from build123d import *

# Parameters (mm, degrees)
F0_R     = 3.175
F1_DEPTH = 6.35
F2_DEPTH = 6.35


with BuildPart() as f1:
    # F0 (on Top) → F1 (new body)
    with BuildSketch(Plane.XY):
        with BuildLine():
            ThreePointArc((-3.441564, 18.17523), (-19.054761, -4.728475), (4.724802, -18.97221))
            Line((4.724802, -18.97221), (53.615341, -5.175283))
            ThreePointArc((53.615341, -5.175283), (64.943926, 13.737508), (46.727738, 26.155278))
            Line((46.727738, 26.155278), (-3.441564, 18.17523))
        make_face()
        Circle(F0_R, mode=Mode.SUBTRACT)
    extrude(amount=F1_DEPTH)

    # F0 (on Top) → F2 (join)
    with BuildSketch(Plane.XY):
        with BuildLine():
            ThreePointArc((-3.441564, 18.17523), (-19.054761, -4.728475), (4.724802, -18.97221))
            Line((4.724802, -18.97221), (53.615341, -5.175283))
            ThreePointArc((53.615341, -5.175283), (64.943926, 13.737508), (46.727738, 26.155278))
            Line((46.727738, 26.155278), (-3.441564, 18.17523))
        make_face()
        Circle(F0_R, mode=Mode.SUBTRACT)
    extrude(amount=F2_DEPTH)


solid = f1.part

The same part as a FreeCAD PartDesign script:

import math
import FreeCAD as App
import Part
import Sketcher
from FreeCAD import Vector
Q = App.Units.Quantity

doc = App.newDocument("Part")
params = doc.addObject("Spreadsheet::Sheet", "Params")
for row, (alias, value) in enumerate([
    ("sketch1_diameter", "0.25 in"),
    ("sketch1_radius", "0.75 in"),
    ("sketch1_length", "2 in"),
    ("pad1_length", "0.25 in"),
    ("sketch2_diameter", "0.25 in"),
    ("sketch2_radius", "0.75 in"),
    ("sketch2_length", "2 in"),
    ("pad2_length", "0.25 in"),
], start=1):
    params.set(f"A{row}", alias)
    params.set(f"B{row}", "=" + value)
    params.setAlias(f"B{row}", alias)

body = doc.addObject("PartDesign::Body", "Body")

sketch1 = doc.addObject("Sketcher::SketchObject", "Sketch")
body.addObject(sketch1)
sketch1.AttachmentSupport = (doc.XY_Plane, [""])
sketch1.MapMode = "FlatFace"
sketch1.addGeometry([
    Part.ArcOfCircle(Part.Circle(Vector(-0.4, -0.6, 0), Vector(0, 0, 1), 19), math.radians(99), math.radians(286)),
    Part.LineSegment(Vector(4.7, -19, 0), Vector(53.6, -5.2, 0)),
    Part.ArcOfCircle(Part.Circle(Vector(49.3, 10.3, 0), Vector(0, 0, 1), 16.1), math.radians(-74), math.radians(99)),
    Part.LineSegment(Vector(46.7, 26.2, 0), Vector(-3.4, 18.2, 0)),
    Part.Circle(Vector(0, 0, 0), Vector(0, 0, 1), 3.2),
], False)
sketch1.addConstraint([
    Sketcher.Constraint("Tangent", 0, 2, 1, 1),
    Sketcher.Constraint("Tangent", 1, 2, 2, 1),
    Sketcher.Constraint("Tangent", 2, 2, 3, 1),
    Sketcher.Constraint("Tangent", 3, 2, 0, 1),
    Sketcher.Constraint("Coincident", 4, 3, -1, 1),
    Sketcher.Constraint("Diameter", 4, Q("0.25 in")),
    Sketcher.Constraint("Radius", 0, Q("0.75 in")),
    Sketcher.Constraint("Distance", 1, Q("2 in")),
    Sketcher.Constraint("Radius", 2, Q("16.06698 mm")),
    Sketcher.Constraint("DistanceX", -1, 1, 0, 2, Q("4.724802 mm")),
    Sketcher.Constraint("DistanceY", 0, 3, -1, 1, Q("0.638258 mm")),
    Sketcher.Constraint("DistanceX", -1, 1, 2, 3, Q("49.251661 mm")),
])
sketch1.setExpression("Constraints[5]", "Params.sketch1_diameter")
sketch1.setExpression("Constraints[6]", "Params.sketch1_radius")
sketch1.setExpression("Constraints[7]", "Params.sketch1_length")
pad1 = doc.addObject("PartDesign::Pad", "Pad")
body.addObject(pad1)
pad1.Profile = sketch1
pad1.setExpression("Length", "Params.pad1_length")

sketch2 = doc.addObject("Sketcher::SketchObject", "Sketch001")
body.addObject(sketch2)
sketch2.AttachmentSupport = (doc.XY_Plane, [""])
sketch2.MapMode = "FlatFace"
sketch2.addGeometry([
    Part.ArcOfCircle(Part.Circle(Vector(-0.4, -0.6, 0), Vector(0, 0, 1), 19), math.radians(99), math.radians(286)),
    Part.LineSegment(Vector(4.7, -19, 0), Vector(53.6, -5.2, 0)),
    Part.ArcOfCircle(Part.Circle(Vector(49.3, 10.3, 0), Vector(0, 0, 1), 16.1), math.radians(-74), math.radians(99)),
    Part.LineSegment(Vector(46.7, 26.2, 0), Vector(-3.4, 18.2, 0)),
    Part.Circle(Vector(0, 0, 0), Vector(0, 0, 1), 3.2),
], False)
sketch2.addConstraint([
    Sketcher.Constraint("Tangent", 0, 2, 1, 1),
    Sketcher.Constraint("Tangent", 1, 2, 2, 1),
    Sketcher.Constraint("Tangent", 2, 2, 3, 1),
    Sketcher.Constraint("Tangent", 3, 2, 0, 1),
    Sketcher.Constraint("Coincident", 4, 3, -1, 1),
    Sketcher.Constraint("Diameter", 4, Q("0.25 in")),
    Sketcher.Constraint("Radius", 0, Q("0.75 in")),
    Sketcher.Constraint("Distance", 1, Q("2 in")),
    Sketcher.Constraint("Radius", 2, Q("16.06698 mm")),
    Sketcher.Constraint("DistanceX", -1, 1, 0, 2, Q("4.724802 mm")),
    Sketcher.Constraint("DistanceY", 0, 3, -1, 1, Q("0.638258 mm")),
    Sketcher.Constraint("DistanceX", -1, 1, 2, 3, Q("49.251661 mm")),
])
sketch2.setExpression("Constraints[5]", "Params.sketch2_diameter")
sketch2.setExpression("Constraints[6]", "Params.sketch2_radius")
sketch2.setExpression("Constraints[7]", "Params.sketch2_length")
pad2 = doc.addObject("PartDesign::Pad", "Pad001")
body.addObject(pad2)
pad2.Profile = sketch2
pad2.setExpression("Length", "Params.pad2_length")

doc.recompute()
